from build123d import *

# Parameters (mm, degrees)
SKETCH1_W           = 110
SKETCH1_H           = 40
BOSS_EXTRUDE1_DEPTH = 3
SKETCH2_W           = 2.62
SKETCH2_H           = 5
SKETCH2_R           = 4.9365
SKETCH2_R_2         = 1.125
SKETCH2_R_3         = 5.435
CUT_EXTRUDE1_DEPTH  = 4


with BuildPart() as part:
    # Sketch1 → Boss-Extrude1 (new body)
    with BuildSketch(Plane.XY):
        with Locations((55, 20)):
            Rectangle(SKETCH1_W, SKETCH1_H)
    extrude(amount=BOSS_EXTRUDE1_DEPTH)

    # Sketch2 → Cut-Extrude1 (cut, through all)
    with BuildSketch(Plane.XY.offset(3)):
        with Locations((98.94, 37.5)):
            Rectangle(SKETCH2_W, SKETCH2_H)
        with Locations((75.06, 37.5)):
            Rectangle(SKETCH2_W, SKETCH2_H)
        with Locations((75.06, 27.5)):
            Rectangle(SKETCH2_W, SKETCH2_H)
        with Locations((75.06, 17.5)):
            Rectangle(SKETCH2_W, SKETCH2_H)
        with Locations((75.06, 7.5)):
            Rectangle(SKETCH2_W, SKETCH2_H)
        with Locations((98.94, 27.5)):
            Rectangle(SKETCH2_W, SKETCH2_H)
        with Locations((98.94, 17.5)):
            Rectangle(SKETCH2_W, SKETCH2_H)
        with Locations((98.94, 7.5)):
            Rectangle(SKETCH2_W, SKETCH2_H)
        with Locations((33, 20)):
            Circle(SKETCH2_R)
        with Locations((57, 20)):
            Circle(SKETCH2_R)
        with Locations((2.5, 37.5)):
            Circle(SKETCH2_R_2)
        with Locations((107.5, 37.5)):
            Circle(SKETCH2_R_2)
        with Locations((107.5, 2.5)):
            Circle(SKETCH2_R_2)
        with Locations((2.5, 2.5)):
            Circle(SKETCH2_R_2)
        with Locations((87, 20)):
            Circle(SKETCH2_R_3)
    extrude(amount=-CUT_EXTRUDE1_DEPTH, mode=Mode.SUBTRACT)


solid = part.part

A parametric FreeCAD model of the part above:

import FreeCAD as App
import Part
import Sketcher
from FreeCAD import Vector
Q = App.Units.Quantity


def add_polygon(sketch, points):
    """Adds a closed chain of lines whose ends are joined by coincident constraints."""
    first, n = sketch.GeometryCount, len(points)
    for a, b in zip(points, points[1:] + points[:1]):
        sketch.addGeometry(Part.LineSegment(App.Vector(*a, 0), App.Vector(*b, 0)), False)
    for i in range(n):
        sketch.addConstraint(Sketcher.Constraint("Coincident", first + i, 2, first + (i + 1) % n, 1))

doc = App.newDocument("Part")
body = doc.addObject("PartDesign::Body", "Body")

sketch1 = body.newObject("Sketcher::SketchObject", "Sketch")
sketch1.AttachmentSupport = (doc.getObject("XY_Plane"), [""])
sketch1.MapMode = "FlatFace"
add_polygon(sketch1, [(0, 40), (0, 0), (110, 0), (110, 40)])
sketch1.addConstraint([
    Sketcher.Constraint("Vertical", 0),
    Sketcher.Constraint("Horizontal", 1),
    Sketcher.Constraint("Vertical", 2),
    Sketcher.Constraint("Horizontal", 3),
    Sketcher.Constraint("Coincident", 0, 2, -1, 1),
    Sketcher.Constraint("DistanceX", 1, 1, 1, 2, Q("110 mm")),
    Sketcher.Constraint("DistanceY", 0, 2, 0, 1, Q("40 mm")),
])
pad1 = body.newObject("PartDesign::Pad", "Pad")
pad1.Profile = sketch1
pad1.Length = 3

sketch2 = body.newObject("Sketcher::SketchObject", "Sketch001")
sketch2.AttachmentSupport = (doc.getObject("XY_Plane"), [""])
sketch2.MapMode = "FlatFace"
sketch2.AttachmentOffset = App.Placement(Vector(0, 0, 3), App.Rotation())
add_polygon(sketch2, [(97.6, 40), (97.6, 35), (100.2, 35), (100.2, 40)])
add_polygon(sketch2, [(73.8, 40), (73.8, 35), (76.4, 35), (76.4, 40)])
add_polygon(sketch2, [(73.8, 30), (73.8, 25), (76.4, 25), (76.4, 30)])
add_polygon(sketch2, [(73.8, 20), (73.8, 15), (76.4, 15), (76.4, 20)])
add_polygon(sketch2, [(73.8, 10), (73.8, 5), (76.4, 5), (76.4, 10)])
add_polygon(sketch2, [(97.6, 30), (97.6, 25), (100.2, 25), (100.2, 30)])
add_polygon(sketch2, [(97.6, 20), (97.6, 15), (100.2, 15), (100.2, 20)])
add_polygon(sketch2, [(97.6, 10), (97.6, 5), (100.2, 5), (100.2, 10)])
sketch2.addGeometry(Part.Circle(Vector(33, 20, 0), Vector(0, 0, 1), 4.9), False)
sketch2.addGeometry(Part.Circle(Vector(57, 20, 0), Vector(0, 0, 1), 4.9), False)
sketch2.addGeometry(Part.Circle(Vector(2.5, 37.5, 0), Vector(0, 0, 1), 1.1), False)
sketch2.addGeometry(Part.Circle(Vector(107.5, 37.5, 0), Vector(0, 0, 1), 1.1), False)
sketch2.addGeometry(Part.Circle(Vector(107.5, 2.5, 0), Vector(0, 0, 1), 1.1), False)
sketch2.addGeometry(Part.Circle(Vector(2.5, 2.5, 0), Vector(0, 0, 1), 1.1), False)
sketch2.addGeometry(Part.Circle(Vector(87, 20, 0), Vector(0, 0, 1), 5.4), False)
sketch2.addConstraint([
    Sketcher.Constraint("Vertical", 0),
    Sketcher.Constraint("Horizontal", 1),
    Sketcher.Constraint("Vertical", 2),
    Sketcher.Constraint("Horizontal", 3),
    Sketcher.Constraint("Vertical", 4),
    Sketcher.Constraint("Horizontal", 5),
    Sketcher.Constraint("Vertical", 6),
    Sketcher.Constraint("Horizontal", 7),
    Sketcher.Constraint("Vertical", 8),
    Sketcher.Constraint("Horizontal", 9),
    Sketcher.Constraint("Vertical", 10),
    Sketcher.Constraint("Horizontal", 11),
    Sketcher.Constraint("Vertical", 12),
    Sketcher.Constraint("Horizontal", 13),
    Sketcher.Constraint("Vertical", 14),
    Sketcher.Constraint("Horizontal", 15),
    Sketcher.Constraint("Vertical", 16),
    Sketcher.Constraint("Horizontal", 17),
    Sketcher.Constraint("Vertical", 18),
    Sketcher.Constraint("Horizontal", 19),
    Sketcher.Constraint("Vertical", 20),
    Sketcher.Constraint("Horizontal", 21),
    Sketcher.Constraint("Vertical", 22),
    Sketcher.Constraint("Horizontal", 23),
    Sketcher.Constraint("Vertical", 24),
    Sketcher.Constraint("Horizontal", 25),
    Sketcher.Constraint("Vertical", 26),
    Sketcher.Constraint("Horizontal", 27),
    Sketcher.Constraint("Vertical", 28),
    Sketcher.Constraint("Horizontal", 29),
    Sketcher.Constraint("Vertical", 30),
    Sketcher.Constraint("Horizontal", 31),
    Sketcher.Constraint("Equal", 32, 33),
    Sketcher.Constraint("Equal", 34, 35),
    Sketcher.Constraint("Equal", 35, 36),
    Sketcher.Constraint("Equal", 36, 37),
    Sketcher.Constraint("Horizontal", 32, 3, 33, 3),
    Sketcher.Constraint("Horizontal", 34, 3, 35, 3),
    Sketcher.Constraint("Horizontal", 36, 3, 37, 3),
    Sketcher.Constraint("Horizontal", 33, 3, 38, 3),
    Sketcher.Constraint("Horizontal", 1, 2, 4, 2),
    Sketcher.Constraint("Horizontal", 3, 2, 6, 2),
    Sketcher.Constraint("Horizontal", 38, 3, 14, 2),
    Sketcher.Constraint("Horizontal", 9, 2, 20, 2),
    Sketcher.Constraint("Horizontal", 11, 2, 22, 2),
    Sketcher.Constraint("Horizontal", 13, 2, 24, 2),
    Sketcher.Constraint("Horizontal", 15, 2, 26, 2),
    Sketcher.Constraint("Horizontal", 17, 2, 28, 2),
    Sketcher.Constraint("Horizontal", 19, 2, 30, 2),
    Sketcher.Constraint("Vertical", 35, 3, 36, 3),
    Sketcher.Constraint("Vertical", 34, 3, 37, 3),
    Sketcher.Constraint("Vertical", 7, 2, 8, 2),
    Sketcher.Constraint("Vertical", 6, 2, 9, 2),
    Sketcher.Constraint("Vertical", 11, 2, 12, 2),
    Sketcher.Constraint("Vertical", 10, 2, 13, 2),
    Sketcher.Constraint("Vertical", 15, 2, 16, 2),
    Sketcher.Constraint("Vertical", 14, 2, 17, 2),
    Sketcher.Constraint("Vertical", 3, 2, 20, 2),
    Sketcher.Constraint("Vertical", 2, 2, 21, 2),
    Sketcher.Constraint("Vertical", 23, 2, 24, 2),
    Sketcher.Constraint("Vertical", 22, 2, 25, 2),
    Sketcher.Constraint("Vertical", 27, 2, 28, 2),
    Sketcher.Constraint("Vertical", 26, 2, 29, 2),
    Sketcher.Constraint("Equal", 3, 5),
    Sketcher.Constraint("Equal", 6, 8),
    Sketcher.Constraint("Equal", 10, 12),
    Sketcher.Constraint("Equal", 14, 16),
    Sketcher.Constraint("Diameter", 34, Q("2.25 mm")),
    Sketcher.Constraint("Diameter", 38, Q("10.87 mm")),
    Sketcher.Constraint("DistanceY", 0, 2, 0, 1, Q("5 mm")),
    Sketcher.Constraint("Diameter", 32, Q("9.873 mm")),
    Sketcher.Constraint("DistanceX", -1, 1, 32, 3, Q("33 mm")),
    Sketcher.Constraint("DistanceY", -1, 1, 32, 3, Q("20 mm")),
    Sketcher.Constraint("DistanceX", -1, 1, 33, 3, Q("57 mm")),
    Sketcher.Constraint("DistanceX", -1, 1, 38, 3, Q("87 mm")),
    Sketcher.Constraint("DistanceY", -1, 1, 0, 2, Q("35 mm")),
    Sketcher.Constraint("DistanceY", -1, 1, 8, 2, Q("25 mm")),
    Sketcher.Constraint("DistanceY", -1, 1, 16, 2, Q("5 mm")),
    Sketcher.Constraint("DistanceX", 34, 3, 35, 3, Q("105 mm")),
    Sketcher.Constraint("DistanceY", 36, 3, 35, 3, Q("35 mm")),
    Sketcher.Constraint("DistanceX", 1, 1, 1, 2, Q("2.62 mm")),
    Sketcher.Constraint("DistanceX", -1, 1, 34, 3, Q("2.5 mm")),
    Sketcher.Constraint("DistanceY", -1, 1, 34, 3, Q("37.5 mm")),
    Sketcher.Constraint("DistanceX", 4, 2, 1, 2, Q("26.5 mm")),
    Sketcher.Constraint("DistanceX", -1, 1, 0, 2, Q("97.63 mm")),
])
pocket1 = body.newObject("PartDesign::Pocket", "Pocket")
pocket1.Profile = sketch2
pocket1.Type = "ThroughAll"

doc.recompute()
